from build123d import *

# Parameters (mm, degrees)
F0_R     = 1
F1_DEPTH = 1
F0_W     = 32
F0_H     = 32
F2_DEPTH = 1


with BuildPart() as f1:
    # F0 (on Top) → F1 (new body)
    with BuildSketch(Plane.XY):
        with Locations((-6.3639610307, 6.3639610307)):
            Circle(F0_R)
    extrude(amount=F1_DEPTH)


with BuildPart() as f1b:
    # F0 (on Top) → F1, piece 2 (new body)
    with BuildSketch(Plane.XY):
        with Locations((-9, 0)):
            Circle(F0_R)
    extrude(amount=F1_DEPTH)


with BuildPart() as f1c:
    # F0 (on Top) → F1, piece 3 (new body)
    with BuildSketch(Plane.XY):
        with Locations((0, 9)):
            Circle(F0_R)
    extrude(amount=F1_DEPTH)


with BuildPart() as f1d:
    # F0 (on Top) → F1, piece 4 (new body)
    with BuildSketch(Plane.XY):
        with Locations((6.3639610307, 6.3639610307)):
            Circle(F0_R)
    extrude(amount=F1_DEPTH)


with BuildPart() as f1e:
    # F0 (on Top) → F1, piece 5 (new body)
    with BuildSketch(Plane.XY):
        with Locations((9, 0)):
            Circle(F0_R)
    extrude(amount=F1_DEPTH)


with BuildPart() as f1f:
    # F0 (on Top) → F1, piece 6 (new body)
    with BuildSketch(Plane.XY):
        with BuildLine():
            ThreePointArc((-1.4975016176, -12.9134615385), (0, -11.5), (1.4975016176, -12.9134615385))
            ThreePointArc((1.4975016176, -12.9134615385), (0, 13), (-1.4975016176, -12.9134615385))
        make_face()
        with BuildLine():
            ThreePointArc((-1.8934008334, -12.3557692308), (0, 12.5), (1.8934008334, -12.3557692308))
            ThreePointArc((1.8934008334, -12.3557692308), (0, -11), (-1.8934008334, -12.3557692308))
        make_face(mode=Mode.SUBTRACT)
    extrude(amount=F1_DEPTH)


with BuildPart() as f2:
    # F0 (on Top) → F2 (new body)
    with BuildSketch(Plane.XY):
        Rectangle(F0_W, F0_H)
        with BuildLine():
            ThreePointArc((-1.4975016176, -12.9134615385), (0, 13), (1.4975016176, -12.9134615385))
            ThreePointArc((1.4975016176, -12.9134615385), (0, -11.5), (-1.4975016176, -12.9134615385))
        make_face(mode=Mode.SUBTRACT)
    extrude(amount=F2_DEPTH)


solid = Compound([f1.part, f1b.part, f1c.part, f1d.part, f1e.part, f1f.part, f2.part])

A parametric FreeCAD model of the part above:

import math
import FreeCAD as App
import Part
import Sketcher
from FreeCAD import Vector


def add_polygon(sketch, points):
    """Adds a closed chain of lines whose ends are joined by coincident constraints."""
    first, n = sketch.GeometryCount, len(points)
    for a, b in zip(points, points[1:] + points[:1]):
        sketch.addGeometry(Part.LineSegment(App.Vector(*a, 0), App.Vector(*b, 0)), False)
    for i in range(n):
        sketch.addConstraint(Sketcher.Constraint("Coincident", first + i, 2, first + (i + 1) % n, 1))

doc = App.newDocument("Part")
body = doc.addObject("PartDesign::Body", "Body")

# Sketch on XY plane
sketch1 = body.newObject("Sketcher::SketchObject", "Sketch")
sketch1.AttachmentSupport = (doc.getObject("XY_Plane"), [""])
sketch1.MapMode = "FlatFace"
sketch1.addGeometry(Part.Circle(Vector(-6.4, 6.4, 0), Vector(0, 0, 1), 1), False)
sketch1.addConstraint(Sketcher.Constraint("Diameter", 0, 2.0))
sketch1.addConstraint(Sketcher.Constraint("DistanceX", 0, 3, -1, 1, 6.363961))
sketch1.addConstraint(Sketcher.Constraint("DistanceY", -1, 1, 0, 3, 6.363961))
pad1 = body.newObject("PartDesign::Pad", "Pad")
pad1.Profile = sketch1
pad1.Length = 1
body2 = doc.addObject("PartDesign::Body", "Body001")

# Sketch on XY plane
sketch2 = body2.newObject("Sketcher::SketchObject", "Sketch001")
sketch2.AttachmentSupport = (doc.getObject("XY_Plane001"), [""])
sketch2.MapMode = "FlatFace"
sketch2.addGeometry(Part.Circle(Vector(-9, 0, 0), Vector(0, 0, 1), 1), False)
sketch2.addConstraint(Sketcher.Constraint("PointOnObject", 0, 3, -1))
sketch2.addConstraint(Sketcher.Constraint("Diameter", 0, 2.0))
sketch2.addConstraint(Sketcher.Constraint("DistanceX", 0, 3, -1, 1, 9.0))
pad2 = body2.newObject("PartDesign::Pad", "Pad001")
pad2.Profile = sketch2
pad2.Length = 1
body3 = doc.addObject("PartDesign::Body", "Body002")

# Sketch on XY plane
sketch3 = body3.newObject("Sketcher::SketchObject", "Sketch002")
sketch3.AttachmentSupport = (doc.getObject("XY_Plane002"), [""])
sketch3.MapMode = "FlatFace"
sketch3.addGeometry(Part.Circle(Vector(0, 9, 0), Vector(0, 0, 1), 1), False)
sketch3.addConstraint(Sketcher.Constraint("PointOnObject", 0, 3, -2))
sketch3.addConstraint(Sketcher.Constraint("Diameter", 0, 2.0))
sketch3.addConstraint(Sketcher.Constraint("DistanceY", -1, 1, 0, 3, 9.0))
pad3 = body3.newObject("PartDesign::Pad", "Pad002")
pad3.Profile = sketch3
pad3.Length = 1
body4 = doc.addObject("PartDesign::Body", "Body003")

# Sketch on XY plane
sketch4 = body4.newObject("Sketcher::SketchObject", "Sketch003")
sketch4.AttachmentSupport = (doc.getObject("XY_Plane003"), [""])
sketch4.MapMode = "FlatFace"
sketch4.addGeometry(Part.Circle(Vector(6.4, 6.4, 0), Vector(0, 0, 1), 1), False)
sketch4.addConstraint(Sketcher.Constraint("Diameter", 0, 2.0))
sketch4.addConstraint(Sketcher.Constraint("DistanceX", -1, 1, 0, 3, 6.363961))
sketch4.addConstraint(Sketcher.Constraint("DistanceY", -1, 1, 0, 3, 6.363961))
pad4 = body4.newObject("PartDesign::Pad", "Pad003")
pad4.Profile = sketch4
pad4.Length = 1
body5 = doc.addObject("PartDesign::Body", "Body004")

# Sketch on XY plane
sketch5 = body5.newObject("Sketcher::SketchObject", "Sketch004")
sketch5.AttachmentSupport = (doc.getObject("XY_Plane004"), [""])
sketch5.MapMode = "FlatFace"
sketch5.addGeometry(Part.Circle(Vector(9, 0, 0), Vector(0, 0, 1), 1), False)
sketch5.addConstraint(Sketcher.Constraint("PointOnObject", 0, 3, -1))
sketch5.addConstraint(Sketcher.Constraint("Diameter", 0, 2.0))
sketch5.addConstraint(Sketcher.Constraint("DistanceX", -1, 1, 0, 3, 9.0))
pad5 = body5.newObject("PartDesign::Pad", "Pad004")
pad5.Profile = sketch5
pad5.Length = 1
body6 = doc.addObject("PartDesign::Body", "Body005")

# Sketch on XY plane
sketch6 = body6.newObject("Sketcher::SketchObject", "Sketch005")
sketch6.AttachmentSupport = (doc.getObject("XY_Plane005"), [""])
sketch6.MapMode = "FlatFace"
sketch6.addGeometry(Part.ArcOfCircle(Part.Circle(Vector(0, -13, 0), Vector(0, 0, 1), 1.5), math.radians(3), math.radians(177)), False)
sketch6.addGeometry(Part.ArcOfCircle(Part.Circle(Vector(0, 0, 0), Vector(0, 0, 1), 13), math.radians(-83), math.radians(263)), False)
sketch6.addGeometry(Part.ArcOfCircle(Part.Circle(Vector(0, -13, 0), Vector(0, 0, 1), 2), math.radians(19), math.radians(161)), False)
sketch6.addGeometry(Part.ArcOfCircle(Part.Circle(Vector(0, 0, 0), Vector(0, 0, 1), 12.5), math.radians(-81), math.radians(261)), False)
sketch6.addConstraint(Sketcher.Constraint("Coincident", 0, 1, 1, 1))
sketch6.addConstraint(Sketcher.Constraint("Coincident", 1, 2, 0, 2))
sketch6.addConstraint(Sketcher.Constraint("Coincident", 2, 1, 3, 1))
sketch6.addConstraint(Sketcher.Constraint("Coincident", 3, 2, 2, 2))
sketch6.addConstraint(Sketcher.Constraint("Coincident", 1, 3, -1, 1))
sketch6.addConstraint(Sketcher.Constraint("Coincident", 3, 3, -1, 1))
sketch6.addConstraint(Sketcher.Constraint("Coincident", 2, 3, 0, 3))
sketch6.addConstraint(Sketcher.Constraint("PointOnObject", 0, 3, -2))
sketch6.addConstraint(Sketcher.Constraint("Radius", 1, 13.0))
sketch6.addConstraint(Sketcher.Constraint("Radius", 2, 2.0))
sketch6.addConstraint(Sketcher.Constraint("Radius", 0, 1.5))
sketch6.addConstraint(Sketcher.Constraint("Radius", 3, 12.5))
sketch6.addConstraint(Sketcher.Constraint("DistanceY", 0, 3, -1, 1, 13.0))
pad6 = body6.newObject("PartDesign::Pad", "Pad005")
pad6.Profile = sketch6
pad6.Length = 1
body7 = doc.addObject("PartDesign::Body", "Body006")

# Sketch on XY plane
sketch7 = body7.newObject("Sketcher::SketchObject", "Sketch006")
sketch7.AttachmentSupport = (doc.getObject("XY_Plane006"), [""])
sketch7.MapMode = "FlatFace"
add_polygon(sketch7, [(-16, 16), (-16, -16), (16, -16), (16, 16)])  # lines 0-3
sketch7.addGeometry(Part.ArcOfCircle(Part.Circle(Vector(0, -13, 0), Vector(0, 0, 1), 1.5), math.radians(3), math.radians(177)), False)  # 4
sketch7.addGeometry(Part.ArcOfCircle(Part.Circle(Vector(0, 0, 0), Vector(0, 0, 1), 13), math.radians(-83), math.radians(263)), False)  # 5
sketch7.addConstraint(Sketcher.Constraint("Coincident", 4, 1, 5, 1))
sketch7.addConstraint(Sketcher.Constraint("Coincident", 5, 2, 4, 2))
sketch7.addConstraint(Sketcher.Constraint("Vertical", 0))
sketch7.addConstraint(Sketcher.Constraint("Horizontal", 1))
sketch7.addConstraint(Sketcher.Constraint("Vertical", 2))
sketch7.addConstraint(Sketcher.Constraint("Horizontal", 3))
sketch7.addConstraint(Sketcher.Constraint("Coincident", 5, 3, -1, 1))
sketch7.addConstraint(Sketcher.Constraint("Symmetric", 0, 2, 2, 2, -1, 1))
sketch7.addConstraint(Sketcher.Constraint("PointOnObject", 4, 3, -2))
sketch7.addConstraint(Sketcher.Constraint("Equal", 3, 0))
sketch7.addConstraint(Sketcher.Constraint("Radius", 5, 13.0))
sketch7.addConstraint(Sketcher.Constraint("Radius", 4, 1.5))
sketch7.addConstraint(Sketcher.Constraint("DistanceX", 1, 1, 1, 2, 32.0))
sketch7.addConstraint(Sketcher.Constraint("DistanceY", 4, 3, -1, 1, 13.0))
pad7 = body7.newObject("PartDesign::Pad", "Pad006")
pad7.Profile = sketch7
pad7.Length = 1

doc.recompute()
